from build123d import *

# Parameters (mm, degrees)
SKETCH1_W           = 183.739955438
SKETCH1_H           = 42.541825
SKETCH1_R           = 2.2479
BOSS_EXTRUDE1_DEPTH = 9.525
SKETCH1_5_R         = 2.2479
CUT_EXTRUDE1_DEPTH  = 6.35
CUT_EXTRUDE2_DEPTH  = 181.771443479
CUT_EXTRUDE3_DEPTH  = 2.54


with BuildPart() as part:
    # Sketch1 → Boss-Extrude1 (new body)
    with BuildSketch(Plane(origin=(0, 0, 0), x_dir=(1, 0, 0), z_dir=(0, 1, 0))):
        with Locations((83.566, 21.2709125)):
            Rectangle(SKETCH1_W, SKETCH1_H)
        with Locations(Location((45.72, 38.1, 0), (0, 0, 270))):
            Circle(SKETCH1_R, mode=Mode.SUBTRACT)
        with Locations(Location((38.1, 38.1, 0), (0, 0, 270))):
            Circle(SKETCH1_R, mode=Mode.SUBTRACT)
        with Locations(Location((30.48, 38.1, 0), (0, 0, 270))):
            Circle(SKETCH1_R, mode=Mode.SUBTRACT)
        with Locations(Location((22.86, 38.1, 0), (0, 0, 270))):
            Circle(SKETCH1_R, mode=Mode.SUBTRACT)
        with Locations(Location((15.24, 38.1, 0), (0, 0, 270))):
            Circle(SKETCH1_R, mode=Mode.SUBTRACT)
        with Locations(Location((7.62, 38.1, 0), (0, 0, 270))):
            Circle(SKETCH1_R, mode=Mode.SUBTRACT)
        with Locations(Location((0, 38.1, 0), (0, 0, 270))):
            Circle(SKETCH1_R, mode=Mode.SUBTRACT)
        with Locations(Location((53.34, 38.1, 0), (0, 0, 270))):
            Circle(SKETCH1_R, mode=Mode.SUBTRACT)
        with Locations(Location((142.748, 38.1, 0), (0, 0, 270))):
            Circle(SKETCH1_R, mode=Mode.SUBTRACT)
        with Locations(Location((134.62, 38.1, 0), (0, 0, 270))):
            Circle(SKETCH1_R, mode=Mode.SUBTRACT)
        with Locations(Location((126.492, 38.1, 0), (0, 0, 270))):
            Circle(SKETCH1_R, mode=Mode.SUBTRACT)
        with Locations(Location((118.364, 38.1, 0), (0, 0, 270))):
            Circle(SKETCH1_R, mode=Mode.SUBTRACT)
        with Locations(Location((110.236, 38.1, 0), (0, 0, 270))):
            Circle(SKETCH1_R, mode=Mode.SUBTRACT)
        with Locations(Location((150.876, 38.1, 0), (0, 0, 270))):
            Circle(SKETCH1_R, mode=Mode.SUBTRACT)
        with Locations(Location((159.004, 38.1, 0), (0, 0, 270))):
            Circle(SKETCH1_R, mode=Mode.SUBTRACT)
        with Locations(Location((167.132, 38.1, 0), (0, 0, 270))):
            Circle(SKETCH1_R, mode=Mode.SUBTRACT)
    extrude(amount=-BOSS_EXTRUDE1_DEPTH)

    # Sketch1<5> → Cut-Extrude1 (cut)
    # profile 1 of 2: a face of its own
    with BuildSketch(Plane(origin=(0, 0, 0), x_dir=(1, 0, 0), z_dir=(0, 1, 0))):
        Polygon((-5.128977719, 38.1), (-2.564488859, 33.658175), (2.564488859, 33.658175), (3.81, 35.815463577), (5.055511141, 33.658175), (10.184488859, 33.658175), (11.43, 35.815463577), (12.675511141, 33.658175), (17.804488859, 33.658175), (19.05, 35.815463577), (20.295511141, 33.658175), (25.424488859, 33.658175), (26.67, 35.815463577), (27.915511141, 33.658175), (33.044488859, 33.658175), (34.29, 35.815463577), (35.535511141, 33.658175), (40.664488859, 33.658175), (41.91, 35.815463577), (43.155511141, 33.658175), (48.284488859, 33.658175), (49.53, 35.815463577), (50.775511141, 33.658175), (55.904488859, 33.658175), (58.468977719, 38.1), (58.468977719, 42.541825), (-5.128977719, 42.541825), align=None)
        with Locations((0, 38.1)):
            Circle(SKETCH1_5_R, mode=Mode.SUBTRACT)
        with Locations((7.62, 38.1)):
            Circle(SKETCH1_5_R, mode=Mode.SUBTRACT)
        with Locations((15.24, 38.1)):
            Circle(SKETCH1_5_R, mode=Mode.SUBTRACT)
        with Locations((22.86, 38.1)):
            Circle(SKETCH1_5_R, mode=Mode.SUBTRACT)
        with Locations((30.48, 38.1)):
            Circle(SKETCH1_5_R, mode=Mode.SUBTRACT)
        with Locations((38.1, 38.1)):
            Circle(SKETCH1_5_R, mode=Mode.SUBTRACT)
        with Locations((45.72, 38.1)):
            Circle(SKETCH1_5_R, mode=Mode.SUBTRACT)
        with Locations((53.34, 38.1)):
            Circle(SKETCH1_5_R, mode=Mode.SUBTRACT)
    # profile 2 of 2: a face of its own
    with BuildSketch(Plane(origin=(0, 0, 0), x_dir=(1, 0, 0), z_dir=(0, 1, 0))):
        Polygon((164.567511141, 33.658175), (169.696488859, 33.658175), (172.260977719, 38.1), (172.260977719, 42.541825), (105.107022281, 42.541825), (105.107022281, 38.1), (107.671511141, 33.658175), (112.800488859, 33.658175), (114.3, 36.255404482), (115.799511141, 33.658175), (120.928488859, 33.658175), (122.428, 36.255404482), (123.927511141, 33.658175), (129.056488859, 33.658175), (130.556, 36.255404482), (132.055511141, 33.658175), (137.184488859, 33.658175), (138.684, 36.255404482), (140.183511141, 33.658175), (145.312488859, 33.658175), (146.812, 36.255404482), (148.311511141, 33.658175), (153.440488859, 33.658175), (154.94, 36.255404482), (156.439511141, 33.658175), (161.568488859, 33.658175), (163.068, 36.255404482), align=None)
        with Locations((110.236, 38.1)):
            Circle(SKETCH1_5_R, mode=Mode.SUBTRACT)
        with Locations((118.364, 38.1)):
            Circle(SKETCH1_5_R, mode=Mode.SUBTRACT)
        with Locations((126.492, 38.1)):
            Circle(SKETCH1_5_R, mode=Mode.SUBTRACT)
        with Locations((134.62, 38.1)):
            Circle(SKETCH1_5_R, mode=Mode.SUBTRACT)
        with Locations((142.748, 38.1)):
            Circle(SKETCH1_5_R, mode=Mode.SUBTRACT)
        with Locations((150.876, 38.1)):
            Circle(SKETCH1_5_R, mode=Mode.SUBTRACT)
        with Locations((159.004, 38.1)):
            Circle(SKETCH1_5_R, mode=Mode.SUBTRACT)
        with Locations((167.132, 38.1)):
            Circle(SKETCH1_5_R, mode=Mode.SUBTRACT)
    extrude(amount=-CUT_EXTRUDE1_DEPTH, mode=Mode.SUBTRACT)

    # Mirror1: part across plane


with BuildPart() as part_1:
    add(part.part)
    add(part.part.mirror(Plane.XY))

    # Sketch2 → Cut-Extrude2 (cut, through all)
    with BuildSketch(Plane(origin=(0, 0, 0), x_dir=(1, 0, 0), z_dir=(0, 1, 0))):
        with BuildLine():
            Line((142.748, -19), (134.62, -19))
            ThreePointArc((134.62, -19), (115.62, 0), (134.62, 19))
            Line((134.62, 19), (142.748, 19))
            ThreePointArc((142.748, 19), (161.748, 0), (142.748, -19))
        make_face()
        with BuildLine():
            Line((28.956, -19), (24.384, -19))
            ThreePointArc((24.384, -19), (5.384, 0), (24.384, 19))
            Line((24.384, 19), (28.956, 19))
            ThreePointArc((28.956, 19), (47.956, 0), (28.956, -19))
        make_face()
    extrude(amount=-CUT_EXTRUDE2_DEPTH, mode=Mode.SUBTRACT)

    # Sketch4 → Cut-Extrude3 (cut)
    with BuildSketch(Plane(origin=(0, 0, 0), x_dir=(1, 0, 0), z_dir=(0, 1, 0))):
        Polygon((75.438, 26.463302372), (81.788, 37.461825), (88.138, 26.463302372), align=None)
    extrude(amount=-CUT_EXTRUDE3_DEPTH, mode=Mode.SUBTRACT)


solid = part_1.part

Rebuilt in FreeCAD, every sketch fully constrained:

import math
import FreeCAD as App
import Part
import Sketcher
Q = App.Units.Quantity

doc = App.newDocument("Part")
body = doc.addObject("PartDesign::Body", "Body")

sketch1 = body.newObject("Sketcher::SketchObject", "Sketch")
sketch1.AttachmentSupport = (doc.getObject("XZ_Plane"), [""])
sketch1.MapMode = "FlatFace"
sketch1.addGeometry([
    Part.LineSegment(App.Vector(-8.3, -42.5, 0), App.Vector(-8.3, 0, 0)),
    Part.LineSegment(App.Vector(-8.3, 0, 0), App.Vector(175.4, 0, 0)),
    Part.LineSegment(App.Vector(175.4, 0, 0), App.Vector(175.4, -42.5, 0)),
    Part.LineSegment(App.Vector(175.4, -42.5, 0), App.Vector(-8.3, -42.5, 0)),
    Part.Circle(App.Vector(0, -38.1, 0), App.Vector(0, 0, 1), 2.2),
    Part.Circle(App.Vector(7.6, -38.1, 0), App.Vector(0, 0, 1), 2.2),
    Part.Circle(App.Vector(15.2, -38.1, 0), App.Vector(0, 0, 1), 2.2),
    Part.Circle(App.Vector(22.9, -38.1, 0), App.Vector(0, 0, 1), 2.2),
    Part.Circle(App.Vector(30.5, -38.1, 0), App.Vector(0, 0, 1), 2.2),
    Part.Circle(App.Vector(38.1, -38.1, 0), App.Vector(0, 0, 1), 2.2),
    Part.Circle(App.Vector(45.7, -38.1, 0), App.Vector(0, 0, 1), 2.2),
    Part.Circle(App.Vector(53.3, -38.1, 0), App.Vector(0, 0, 1), 2.2),
    Part.Circle(App.Vector(110.2, -38.1, 0), App.Vector(0, 0, 1), 2.2),
    Part.Circle(App.Vector(118.4, -38.1, 0), App.Vector(0, 0, 1), 2.2),
    Part.Circle(App.Vector(126.5, -38.1, 0), App.Vector(0, 0, 1), 2.2),
    Part.Circle(App.Vector(134.6, -38.1, 0), App.Vector(0, 0, 1), 2.2),
    Part.Circle(App.Vector(142.7, -38.1, 0), App.Vector(0, 0, 1), 2.2),
    Part.Circle(App.Vector(150.9, -38.1, 0), App.Vector(0, 0, 1), 2.2),
    Part.Circle(App.Vector(159, -38.1, 0), App.Vector(0, 0, 1), 2.2),
    Part.Circle(App.Vector(167.1, -38.1, 0), App.Vector(0, 0, 1), 2.2),
], False)
sketch1.addConstraint([
    Sketcher.Constraint("Coincident", 0, 2, 1, 1),
    Sketcher.Constraint("Coincident", 1, 2, 2, 1),
    Sketcher.Constraint("Coincident", 2, 2, 3, 1),
    Sketcher.Constraint("Coincident", 3, 2, 0, 1),
    Sketcher.Constraint("Vertical", 0),
    Sketcher.Constraint("Horizontal", 1),
    Sketcher.Constraint("Vertical", 2),
    Sketcher.Constraint("Horizontal", 3),
    Sketcher.Constraint("Equal", 4, 5),
    Sketcher.Constraint("Equal", 5, 6),
    Sketcher.Constraint("Equal", 6, 7),
    Sketcher.Constraint("Equal", 7, 8),
    Sketcher.Constraint("Equal", 8, 9),
    Sketcher.Constraint("Equal", 9, 10),
    Sketcher.Constraint("Equal", 10, 11),
    Sketcher.Constraint("Equal", 11, 12),
    Sketcher.Constraint("Equal", 12, 13),
    Sketcher.Constraint("Equal", 13, 14),
    Sketcher.Constraint("Equal", 14, 15),
    Sketcher.Constraint("Equal", 15, 16),
    Sketcher.Constraint("Equal", 16, 17),
    Sketcher.Constraint("Equal", 17, 18),
    Sketcher.Constraint("Equal", 18, 19),
    Sketcher.Constraint("PointOnObject", 4, 3, -2),
    Sketcher.Constraint("PointOnObject", 0, 2, -1),
    Sketcher.Constraint("Horizontal", 4, 3, 5, 3),
    Sketcher.Constraint("Horizontal", 5, 3, 6, 3),
    Sketcher.Constraint("Horizontal", 6, 3, 7, 3),
    Sketcher.Constraint("Horizontal", 7, 3, 8, 3),
    Sketcher.Constraint("Horizontal", 8, 3, 9, 3),
    Sketcher.Constraint("Horizontal", 9, 3, 10, 3),
    Sketcher.Constraint("Horizontal", 10, 3, 11, 3),
    Sketcher.Constraint("Horizontal", 11, 3, 12, 3),
    Sketcher.Constraint("Horizontal", 12, 3, 13, 3),
    Sketcher.Constraint("Horizontal", 13, 3, 14, 3),
    Sketcher.Constraint("Horizontal", 14, 3, 15, 3),
    Sketcher.Constraint("Horizontal", 15, 3, 16, 3),
    Sketcher.Constraint("Horizontal", 16, 3, 17, 3),
    Sketcher.Constraint("Horizontal", 17, 3, 18, 3),
    Sketcher.Constraint("Horizontal", 18, 3, 19, 3),
    Sketcher.Constraint("Diameter", 4, Q("0.177 in")),
    Sketcher.Constraint("DistanceY", 4, 3, -1, 1, Q("1.5 in")),
    Sketcher.Constraint("DistanceX", -1, 1, 5, 3, Q("0.3 in")),
    Sketcher.Constraint("DistanceX", -1, 1, 6, 3, Q("0.6 in")),
    Sketcher.Constraint("DistanceX", -1, 1, 7, 3, Q("0.9 in")),
    Sketcher.Constraint("DistanceX", -1, 1, 8, 3, Q("1.2 in")),
    Sketcher.Constraint("DistanceX", -1, 1, 9, 3, Q("1.5 in")),
    Sketcher.Constraint("DistanceX", -1, 1, 10, 3, Q("1.8 in")),
    Sketcher.Constraint("DistanceX", -1, 1, 11, 3, Q("2.1 in")),
    Sketcher.Constraint("DistanceX", -1, 1, 15, 3, Q("5.3 in")),
    Sketcher.Constraint("DistanceX", 12, 3, 17, 3, Q("1.6 in")),
    Sketcher.Constraint("DistanceX", 13, 3, 18, 3, Q("1.6 in")),
    Sketcher.Constraint("DistanceX", 14, 3, 19, 3, Q("1.6 in")),
    Sketcher.Constraint("DistanceX", -1, 1, 12, 3, Q("4.34 in")),
    Sketcher.Constraint("DistanceX", -1, 1, 13, 3, Q("4.66 in")),
    Sketcher.Constraint("DistanceX", -1, 1, 14, 3, Q("4.98 in")),
    Sketcher.Constraint("DistanceX", -1, 1, 16, 3, Q("5.62 in")),
    Sketcher.Constraint("DistanceX", 1, 1, 1, 2, Q("183.739955 mm")),
    Sketcher.Constraint("DistanceY", 0, 1, 0, 2, Q("42.541825 mm")),
    Sketcher.Constraint("DistanceX", 0, 2, -1, 1, Q("8.303978 mm")),
])
pad1 = body.newObject("PartDesign::Pad", "Pad")
pad1.Profile = sketch1
pad1.Length = Q("0.375 in")

sketch2 = body.newObject("Sketcher::SketchObject", "Sketch001")
sketch2.AttachmentSupport = (doc.getObject("XZ_Plane"), [""])
sketch2.MapMode = "FlatFace"
sketch2.addGeometry([
    Part.LineSegment(App.Vector(-5.1, -38.1, 0), App.Vector(-2.6, -33.7, 0)),
    Part.LineSegment(App.Vector(-2.6, -33.7, 0), App.Vector(2.6, -33.7, 0)),
    Part.LineSegment(App.Vector(2.6, -33.7, 0), App.Vector(3.8, -35.8, 0)),
    Part.LineSegment(App.Vector(3.8, -35.8, 0), App.Vector(5.1, -33.7, 0)),
    Part.LineSegment(App.Vector(5.1, -33.7, 0), App.Vector(10.2, -33.7, 0)),
    Part.LineSegment(App.Vector(10.2, -33.7, 0), App.Vector(11.4, -35.8, 0)),
    Part.LineSegment(App.Vector(11.4, -35.8, 0), App.Vector(12.7, -33.7, 0)),
    Part.LineSegment(App.Vector(12.7, -33.7, 0), App.Vector(17.8, -33.7, 0)),
    Part.LineSegment(App.Vector(17.8, -33.7, 0), App.Vector(19.1, -35.8, 0)),
    Part.LineSegment(App.Vector(19.1, -35.8, 0), App.Vector(20.3, -33.7, 0)),
    Part.LineSegment(App.Vector(20.3, -33.7, 0), App.Vector(25.4, -33.7, 0)),
    Part.LineSegment(App.Vector(25.4, -33.7, 0), App.Vector(26.7, -35.8, 0)),
    Part.LineSegment(App.Vector(26.7, -35.8, 0), App.Vector(27.9, -33.7, 0)),
    Part.LineSegment(App.Vector(27.9, -33.7, 0), App.Vector(33, -33.7, 0)),
    Part.LineSegment(App.Vector(33, -33.7, 0), App.Vector(34.3, -35.8, 0)),
    Part.LineSegment(App.Vector(34.3, -35.8, 0), App.Vector(35.5, -33.7, 0)),
    Part.LineSegment(App.Vector(35.5, -33.7, 0), App.Vector(40.7, -33.7, 0)),
    Part.LineSegment(App.Vector(40.7, -33.7, 0), App.Vector(41.9, -35.8, 0)),
    Part.LineSegment(App.Vector(41.9, -35.8, 0), App.Vector(43.2, -33.7, 0)),
    Part.LineSegment(App.Vector(43.2, -33.7, 0), App.Vector(48.3, -33.7, 0)),
    Part.LineSegment(App.Vector(48.3, -33.7, 0), App.Vector(49.5, -35.8, 0)),
    Part.LineSegment(App.Vector(49.5, -35.8, 0), App.Vector(50.8, -33.7, 0)),
    Part.LineSegment(App.Vector(50.8, -33.7, 0), App.Vector(55.9, -33.7, 0)),
    Part.LineSegment(App.Vector(55.9, -33.7, 0), App.Vector(58.5, -38.1, 0)),
    Part.LineSegment(App.Vector(58.5, -38.1, 0), App.Vector(58.5, -42.5, 0)),
    Part.LineSegment(App.Vector(58.5, -42.5, 0), App.Vector(-5.1, -42.5, 0)),
    Part.LineSegment(App.Vector(-5.1, -42.5, 0), App.Vector(-5.1, -38.1, 0)),
    Part.Circle(App.Vector(0, -38.1, 0), App.Vector(0, 0, 1), 2.2),
    Part.Circle(App.Vector(7.6, -38.1, 0), App.Vector(0, 0, 1), 2.2),
    Part.Circle(App.Vector(15.2, -38.1, 0), App.Vector(0, 0, 1), 2.2),
    Part.Circle(App.Vector(22.9, -38.1, 0), App.Vector(0, 0, 1), 2.2),
    Part.Circle(App.Vector(30.5, -38.1, 0), App.Vector(0, 0, 1), 2.2),
    Part.Circle(App.Vector(38.1, -38.1, 0), App.Vector(0, 0, 1), 2.2),
    Part.Circle(App.Vector(45.7, -38.1, 0), App.Vector(0, 0, 1), 2.2),
    Part.Circle(App.Vector(53.3, -38.1, 0), App.Vector(0, 0, 1), 2.2),
    Part.LineSegment(App.Vector(164.6, -33.7, 0), App.Vector(169.7, -33.7, 0)),
    Part.LineSegment(App.Vector(169.7, -33.7, 0), App.Vector(172.3, -38.1, 0)),
    Part.LineSegment(App.Vector(172.3, -38.1, 0), App.Vector(172.3, -42.5, 0)),
    Part.LineSegment(App.Vector(172.3, -42.5, 0), App.Vector(105.1, -42.5, 0)),
    Part.LineSegment(App.Vector(105.1, -42.5, 0), App.Vector(105.1, -38.1, 0)),
    Part.LineSegment(App.Vector(105.1, -38.1, 0), App.Vector(107.7, -33.7, 0)),
    Part.LineSegment(App.Vector(107.7, -33.7, 0), App.Vector(112.8, -33.7, 0)),
    Part.LineSegment(App.Vector(112.8, -33.7, 0), App.Vector(114.3, -36.3, 0)),
    Part.LineSegment(App.Vector(114.3, -36.3, 0), App.Vector(115.8, -33.7, 0)),
    Part.LineSegment(App.Vector(115.8, -33.7, 0), App.Vector(120.9, -33.7, 0)),
    Part.LineSegment(App.Vector(120.9, -33.7, 0), App.Vector(122.4, -36.3, 0)),
    Part.LineSegment(App.Vector(122.4, -36.3, 0), App.Vector(123.9, -33.7, 0)),
    Part.LineSegment(App.Vector(123.9, -33.7, 0), App.Vector(129.1, -33.7, 0)),
    Part.LineSegment(App.Vector(129.1, -33.7, 0), App.Vector(130.6, -36.3, 0)),
    Part.LineSegment(App.Vector(130.6, -36.3, 0), App.Vector(132.1, -33.7, 0)),
    Part.LineSegment(App.Vector(132.1, -33.7, 0), App.Vector(137.2, -33.7, 0)),
    Part.LineSegment(App.Vector(137.2, -33.7, 0), App.Vector(138.7, -36.3, 0)),
    Part.LineSegment(App.Vector(138.7, -36.3, 0), App.Vector(140.2, -33.7, 0)),
    Part.LineSegment(App.Vector(140.2, -33.7, 0), App.Vector(145.3, -33.7, 0)),
    Part.LineSegment(App.Vector(145.3, -33.7, 0), App.Vector(146.8, -36.3, 0)),
    Part.LineSegment(App.Vector(146.8, -36.3, 0), App.Vector(148.3, -33.7, 0)),
    Part.LineSegment(App.Vector(148.3, -33.7, 0), App.Vector(153.4, -33.7, 0)),
    Part.LineSegment(App.Vector(153.4, -33.7, 0), App.Vector(154.9, -36.3, 0)),
    Part.LineSegment(App.Vector(154.9, -36.3, 0), App.Vector(156.4, -33.7, 0)),
    Part.LineSegment(App.Vector(156.4, -33.7, 0), App.Vector(161.6, -33.7, 0)),
    Part.LineSegment(App.Vector(161.6, -33.7, 0), App.Vector(163.1, -36.3, 0)),
    Part.LineSegment(App.Vector(163.1, -36.3, 0), App.Vector(164.6, -33.7, 0)),
    Part.Circle(App.Vector(110.2, -38.1, 0), App.Vector(0, 0, 1), 2.2),
    Part.Circle(App.Vector(118.4, -38.1, 0), App.Vector(0, 0, 1), 2.2),
    Part.Circle(App.Vector(126.5, -38.1, 0), App.Vector(0, 0, 1), 2.2),
    Part.Circle(App.Vector(134.6, -38.1, 0), App.Vector(0, 0, 1), 2.2),
    Part.Circle(App.Vector(142.7, -38.1, 0), App.Vector(0, 0, 1), 2.2),
    Part.Circle(App.Vector(150.9, -38.1, 0), App.Vector(0, 0, 1), 2.2),
    Part.Circle(App.Vector(159, -38.1, 0), App.Vector(0, 0, 1), 2.2),
    Part.Circle(App.Vector(167.1, -38.1, 0), App.Vector(0, 0, 1), 2.2),
], False)
sketch2.addConstraint([
    Sketcher.Constraint("Coincident", 0, 2, 1, 1),
    Sketcher.Constraint("Coincident", 1, 2, 2, 1),
    Sketcher.Constraint("Coincident", 2, 2, 3, 1),
    Sketcher.Constraint("Coincident", 3, 2, 4, 1),
    Sketcher.Constraint("Coincident", 4, 2, 5, 1),
    Sketcher.Constraint("Coincident", 5, 2, 6, 1),
    Sketcher.Constraint("Coincident", 6, 2, 7, 1),
    Sketcher.Constraint("Coincident", 7, 2, 8, 1),
    Sketcher.Constraint("Coincident", 8, 2, 9, 1),
    Sketcher.Constraint("Coincident", 9, 2, 10, 1),
    Sketcher.Constraint("Coincident", 10, 2, 11, 1),
    Sketcher.Constraint("Coincident", 11, 2, 12, 1),
    Sketcher.Constraint("Coincident", 12, 2, 13, 1),
    Sketcher.Constraint("Coincident", 13, 2, 14, 1),
    Sketcher.Constraint("Coincident", 14, 2, 15, 1),
    Sketcher.Constraint("Coincident", 15, 2, 16, 1),
    Sketcher.Constraint("Coincident", 16, 2, 17, 1),
    Sketcher.Constraint("Coincident", 17, 2, 18, 1),
    Sketcher.Constraint("Coincident", 18, 2, 19, 1),
    Sketcher.Constraint("Coincident", 19, 2, 20, 1),
    Sketcher.Constraint("Coincident", 20, 2, 21, 1),
    Sketcher.Constraint("Coincident", 21, 2, 22, 1),
    Sketcher.Constraint("Coincident", 22, 2, 23, 1),
    Sketcher.Constraint("Coincident", 23, 2, 24, 1),
    Sketcher.Constraint("Coincident", 24, 2, 25, 1),
    Sketcher.Constraint("Coincident", 25, 2, 26, 1),
    Sketcher.Constraint("Coincident", 26, 2, 0, 1),
    Sketcher.Constraint("Coincident", 35, 2, 36, 1),
    Sketcher.Constraint("Coincident", 36, 2, 37, 1),
    Sketcher.Constraint("Coincident", 37, 2, 38, 1),
    Sketcher.Constraint("Coincident", 38, 2, 39, 1),
    Sketcher.Constraint("Coincident", 39, 2, 40, 1),
    Sketcher.Constraint("Coincident", 40, 2, 41, 1),
    Sketcher.Constraint("Coincident", 41, 2, 42, 1),
    Sketcher.Constraint("Coincident", 42, 2, 43, 1),
    Sketcher.Constraint("Coincident", 43, 2, 44, 1),
    Sketcher.Constraint("Coincident", 44, 2, 45, 1),
    Sketcher.Constraint("Coincident", 45, 2, 46, 1),
    Sketcher.Constraint("Coincident", 46, 2, 47, 1),
    Sketcher.Constraint("Coincident", 47, 2, 48, 1),
    Sketcher.Constraint("Coincident", 48, 2, 49, 1),
    Sketcher.Constraint("Coincident", 49, 2, 50, 1),
    Sketcher.Constraint("Coincident", 50, 2, 51, 1),
    Sketcher.Constraint("Coincident", 51, 2, 52, 1),
    Sketcher.Constraint("Coincident", 52, 2, 53, 1),
    Sketcher.Constraint("Coincident", 53, 2, 54, 1),
    Sketcher.Constraint("Coincident", 54, 2, 55, 1),
    Sketcher.Constraint("Coincident", 55, 2, 56, 1),
    Sketcher.Constraint("Coincident", 56, 2, 57, 1),
    Sketcher.Constraint("Coincident", 57, 2, 58, 1),
    Sketcher.Constraint("Coincident", 58, 2, 59, 1),
    Sketcher.Constraint("Coincident", 59, 2, 60, 1),
    Sketcher.Constraint("Coincident", 60, 2, 61, 1),
    Sketcher.Constraint("Coincident", 61, 2, 35, 1),
    Sketcher.Constraint("Horizontal", 1),
    Sketcher.Constraint("Horizontal", 4),
    Sketcher.Constraint("Horizontal", 7),
    Sketcher.Constraint("Horizontal", 10),
    Sketcher.Constraint("Horizontal", 13),
    Sketcher.Constraint("Horizontal", 16),
    Sketcher.Constraint("Horizontal", 19),
    Sketcher.Constraint("Horizontal", 22),
    Sketcher.Constraint("Vertical", 24),
    Sketcher.Constraint("Horizontal", 25),
    Sketcher.Constraint("Vertical", 26),
    Sketcher.Constraint("Horizontal", 35),
    Sketcher.Constraint("Vertical", 37),
    Sketcher.Constraint("Horizontal", 38),
    Sketcher.Constraint("Vertical", 39),
    Sketcher.Constraint("Horizontal", 41),
    Sketcher.Constraint("Horizontal", 44),
    Sketcher.Constraint("Horizontal", 47),
    Sketcher.Constraint("Horizontal", 50),
    Sketcher.Constraint("Horizontal", 53),
    Sketcher.Constraint("Horizontal", 56),
    Sketcher.Constraint("Horizontal", 59),
    Sketcher.Constraint("Equal", 27, 28),
    Sketcher.Constraint("Equal", 28, 29),
    Sketcher.Constraint("Equal", 29, 30),
    Sketcher.Constraint("Equal", 30, 31),
    Sketcher.Constraint("Equal", 31, 32),
    Sketcher.Constraint("Equal", 32, 33),
    Sketcher.Constraint("Equal", 33, 34),
    Sketcher.Constraint("Equal", 34, 62),
    Sketcher.Constraint("Equal", 62, 63),
    Sketcher.Constraint("Equal", 63, 64),
    Sketcher.Constraint("Equal", 64, 65),
    Sketcher.Constraint("Equal", 65, 66),
    Sketcher.Constraint("Equal", 66, 67),
    Sketcher.Constraint("Equal", 67, 68),
    Sketcher.Constraint("Equal", 68, 69),
    Sketcher.Constraint("PointOnObject", 27, 3, -2),
    Sketcher.Constraint("Parallel", 0, 3),
    Sketcher.Constraint("Parallel", 2, 5),
    Sketcher.Constraint("Parallel", 3, 6),
    Sketcher.Constraint("Parallel", 5, 8),
    Sketcher.Constraint("Parallel", 6, 9),
    Sketcher.Constraint("Parallel", 8, 11),
    Sketcher.Constraint("Parallel", 9, 12),
    Sketcher.Constraint("Parallel", 11, 14),
    Sketcher.Constraint("Parallel", 12, 15),
    Sketcher.Constraint("Parallel", 14, 17),
    Sketcher.Constraint("Parallel", 15, 18),
    Sketcher.Constraint("Parallel", 17, 20),
    Sketcher.Constraint("Parallel", 18, 21),
    Sketcher.Constraint("Parallel", 20, 23),
    Sketcher.Constraint("Parallel", 23, 36),
    Sketcher.Constraint("Parallel", 21, 40),
    Sketcher.Constraint("Parallel", 36, 42),
    Sketcher.Constraint("Parallel", 40, 43),
    Sketcher.Constraint("Parallel", 42, 45),
    Sketcher.Constraint("Parallel", 43, 46),
    Sketcher.Constraint("Parallel", 45, 48),
    Sketcher.Constraint("Parallel", 46, 49),
    Sketcher.Constraint("Parallel", 48, 51),
    Sketcher.Constraint("Parallel", 49, 52),
    Sketcher.Constraint("Parallel", 51, 54),
    Sketcher.Constraint("Parallel", 52, 55),
    Sketcher.Constraint("Parallel", 54, 57),
    Sketcher.Constraint("Parallel", 55, 58),
    Sketcher.Constraint("Parallel", 57, 60),
    Sketcher.Constraint("Parallel", 58, 61),
    Sketcher.Constraint("Horizontal", 27, 3, 28, 3),
    Sketcher.Constraint("Horizontal", 28, 3, 29, 3),
    Sketcher.Constraint("Horizontal", 29, 3, 30, 3),
    Sketcher.Constraint("Horizontal", 30, 3, 31, 3),
    Sketcher.Constraint("Horizontal", 31, 3, 32, 3),
    Sketcher.Constraint("Horizontal", 32, 3, 33, 3),
    Sketcher.Constraint("Horizontal", 33, 3, 34, 3),
    Sketcher.Constraint("Horizontal", 34, 3, 62, 3),
    Sketcher.Constraint("Horizontal", 62, 3, 63, 3),
    Sketcher.Constraint("Horizontal", 63, 3, 64, 3),
    Sketcher.Constraint("Horizontal", 64, 3, 65, 3),
    Sketcher.Constraint("Horizontal", 65, 3, 66, 3),
    Sketcher.Constraint("Horizontal", 66, 3, 67, 3),
    Sketcher.Constraint("Horizontal", 67, 3, 68, 3),
    Sketcher.Constraint("Horizontal", 68, 3, 69, 3),
    Sketcher.Constraint("Horizontal", 1, 2, 3, 2),
    Sketcher.Constraint("Horizontal", 2, 2, 5, 2),
    Sketcher.Constraint("Horizontal", 4, 2, 6, 2),
    Sketcher.Constraint("Horizontal", 5, 2, 8, 2),
    Sketcher.Constraint("Horizontal", 7, 2, 9, 2),
    Sketcher.Constraint("Horizontal", 8, 2, 11, 2),
    Sketcher.Constraint("Horizontal", 10, 2, 12, 2),
    Sketcher.Constraint("Horizontal", 11, 2, 14, 2),
    Sketcher.Constraint("Horizontal", 13, 2, 15, 2),
    Sketcher.Constraint("Horizontal", 14, 2, 17, 2),
    Sketcher.Constraint("Horizontal", 16, 2, 18, 2),
    Sketcher.Constraint("Horizontal", 17, 2, 20, 2),
    Sketcher.Constraint("Horizontal", 19, 2, 21, 2),
    Sketcher.Constraint("Horizontal", 69, 3, 23, 2),
    Sketcher.Constraint("Horizontal", 23, 2, 26, 2),
    Sketcher.Constraint("Horizontal", 22, 2, 35, 2),
    Sketcher.Constraint("Horizontal", 26, 2, 36, 2),
    Sketcher.Constraint("Horizontal", 25, 2, 37, 2),
    Sketcher.Constraint("Horizontal", 36, 2, 39, 2),
    Sketcher.Constraint("Horizontal", 35, 2, 40, 2),
    Sketcher.Constraint("Horizontal", 41, 2, 43, 2),
    Sketcher.Constraint("Horizontal", 42, 2, 45, 2),
    Sketcher.Constraint("Horizontal", 44, 2, 46, 2),
    Sketcher.Constraint("Horizontal", 45, 2, 48, 2),
    Sketcher.Constraint("Horizontal", 47, 2, 49, 2),
    Sketcher.Constraint("Horizontal", 48, 2, 51, 2),
    Sketcher.Constraint("Horizontal", 50, 2, 52, 2),
    Sketcher.Constraint("Horizontal", 51, 2, 54, 2),
    Sketcher.Constraint("Horizontal", 53, 2, 55, 2),
    Sketcher.Constraint("Horizontal", 54, 2, 57, 2),
    Sketcher.Constraint("Horizontal", 56, 2, 58, 2),
    Sketcher.Constraint("Horizontal", 57, 2, 60, 2),
    Sketcher.Constraint("Equal", 1, 4),
    Sketcher.Constraint("Equal", 4, 7),
    Sketcher.Constraint("Equal", 7, 10),
    Sketcher.Constraint("Equal", 10, 13),
    Sketcher.Constraint("Equal", 13, 16),
    Sketcher.Constraint("Equal", 16, 19),
    Sketcher.Constraint("Equal", 19, 22),
    Sketcher.Constraint("Equal", 22, 35),
    Sketcher.Constraint("Equal", 35, 41),
    Sketcher.Constraint("Equal", 41, 44),
    Sketcher.Constraint("Equal", 44, 47),
    Sketcher.Constraint("Equal", 47, 50),
    Sketcher.Constraint("Equal", 50, 53),
    Sketcher.Constraint("Equal", 53, 56),
    Sketcher.Constraint("Equal", 56, 59),
    Sketcher.Constraint("Equal", 2, 3),
    Sketcher.Constraint("Diameter", 27, Q("0.177 in")),
    Sketcher.Constraint("Angle", 0, Q("60 deg")),
    Sketcher.Constraint("DistanceY", 27, 3, -1, 1, Q("1.5 in")),
    Sketcher.Constraint("DistanceX", -1, 1, 28, 3, Q("0.3 in")),
    Sketcher.Constraint("DistanceX", -1, 1, 29, 3, Q("0.6 in")),
    Sketcher.Constraint("DistanceX", -1, 1, 30, 3, Q("0.9 in")),
    Sketcher.Constraint("DistanceX", -1, 1, 31, 3, Q("1.2 in")),
    Sketcher.Constraint("DistanceX", -1, 1, 32, 3, Q("1.5 in")),
    Sketcher.Constraint("DistanceX", -1, 1, 33, 3, Q("1.8 in")),
    Sketcher.Constraint("DistanceX", -1, 1, 34, 3, Q("2.1 in")),
    Sketcher.Constraint("DistanceX", -1, 1, 65, 3, Q("5.3 in")),
    Sketcher.Constraint("DistanceX", -1, 1, 42, 2, Q("4.5 in")),
    Sketcher.Constraint("DistanceX", -1, 1, 57, 2, Q("6.1 in")),
    Sketcher.Constraint("DistanceX", -1, 1, 62, 3, Q("4.34 in")),
    Sketcher.Constraint("DistanceX", -1, 1, 63, 3, Q("4.66 in")),
    Sketcher.Constraint("DistanceX", -1, 1, 64, 3, Q("4.98 in")),
    Sketcher.Constraint("DistanceX", -1, 1, 66, 3, Q("5.62 in")),
    Sketcher.Constraint("DistanceX", -1, 1, 67, 3, Q("5.94 in")),
    Sketcher.Constraint("DistanceX", -1, 1, 68, 3, Q("6.26 in")),
    Sketcher.Constraint("DistanceX", -1, 1, 69, 3, Q("6.58 in")),
    Sketcher.Constraint("DistanceX", -1, 1, 2, 2, Q("0.15 in")),
    Sketcher.Constraint("DistanceX", -1, 1, 5, 2, Q("0.45 in")),
    Sketcher.Constraint("DistanceX", 1, 1, 1, 2, Q("5.128978 mm")),
    Sketcher.Constraint("DistanceX", 25, 2, 25, 1, Q("63.597955 mm")),
    Sketcher.Constraint("DistanceY", 24, 2, 24, 1, Q("4.441825 mm")),
])
pocket1 = body.newObject("PartDesign::Pocket", "Pocket")
pocket1.Profile = sketch2
pocket1.Length = Q("0.25 in")
pocket1.Reversed = True
body2 = doc.addObject("PartDesign::Body", "Body001")
doc.recompute()

body2.BaseFeature = body
doc.recompute()

mirroring = doc.addObject("Part::Mirroring", "Mirroring")
mirroring.Source = body
mirroring.Base = App.Vector(0, 0, 0)
mirroring.Normal = App.Vector(0, 0, 1)
body3 = doc.addObject("PartDesign::Body", "Body002")
body3.BaseFeature = mirroring
boolean = body2.newObject("PartDesign::Boolean", "Boolean")
boolean.Type = "Fuse"
boolean.addObjects([body3])
doc.recompute()

sketch3 = body2.newObject("Sketcher::SketchObject", "Sketch002")
sketch3.AttachmentSupport = (doc.getObject("XZ_Plane001"), [""])
sketch3.MapMode = "FlatFace"
sketch3.addGeometry([
    Part.LineSegment(App.Vector(134.6, 19, 0), App.Vector(142.7, 19, 0)),
    Part.ArcOfCircle(Part.Circle(App.Vector(142.7, 0, 0), App.Vector(0, 0, 1), 19), math.radians(-90), math.radians(90)),
    Part.LineSegment(App.Vector(142.7, -19, 0), App.Vector(134.6, -19, 0)),
    Part.ArcOfCircle(Part.Circle(App.Vector(134.6, 0, 0), App.Vector(0, 0, 1), 19), math.radians(90), math.radians(270)),
    Part.LineSegment(App.Vector(24.4, 19, 0), App.Vector(29, 19, 0)),
    Part.ArcOfCircle(Part.Circle(App.Vector(29, 0, 0), App.Vector(0, 0, 1), 19), math.radians(-90), math.radians(90)),
    Part.LineSegment(App.Vector(29, -19, 0), App.Vector(24.4, -19, 0)),
    Part.ArcOfCircle(Part.Circle(App.Vector(24.4, 0, 0), App.Vector(0, 0, 1), 19), math.radians(90), math.radians(270)),
], False)
sketch3.addConstraint([
    Sketcher.Constraint("Tangent", 0, 2, 1, 2),
    Sketcher.Constraint("Tangent", 1, 1, 2, 1),
    Sketcher.Constraint("Tangent", 2, 2, 3, 2),
    Sketcher.Constraint("Tangent", 3, 1, 0, 1),
    Sketcher.Constraint("Tangent", 4, 2, 5, 2),
    Sketcher.Constraint("Tangent", 5, 1, 6, 1),
    Sketcher.Constraint("Tangent", 6, 2, 7, 2),
    Sketcher.Constraint("Tangent", 7, 1, 4, 1),
    Sketcher.Constraint("Horizontal", 0),
    Sketcher.Constraint("Horizontal", 2),
    Sketcher.Constraint("Horizontal", 4),
    Sketcher.Constraint("Horizontal", 6),
    Sketcher.Constraint("Equal", 3, 5),
    Sketcher.Constraint("PointOnObject", 1, 3, -1),
    Sketcher.Constraint("PointOnObject", 5, 3, -1),
    Sketcher.Constraint("DistanceX", 0, 1, 0, 2, Q("0.32 in")),
    Sketcher.Constraint("DistanceX", 4, 1, 4, 2, Q("0.18 in")),
    Sketcher.Constraint("DistanceX", -1, 1, 3, 3, Q("5.3 in")),
    Sketcher.Constraint("DistanceX", -1, 1, 5, 3, Q("1.14 in")),
    Sketcher.Constraint("Radius", 1, Q("19 mm")),
])
pocket2 = body2.newObject("PartDesign::Pocket", "Pocket001")
pocket2.Profile = sketch3
pocket2.Type = "ThroughAll"
pocket2.Reversed = True

sketch4 = body2.newObject("Sketcher::SketchObject", "Sketch003")
sketch4.AttachmentSupport = (doc.getObject("XZ_Plane001"), [""])
sketch4.MapMode = "FlatFace"
sketch4.addGeometry([
    Part.LineSegment(App.Vector(82, -37, 0), App.Vector(75, -26, 0)),
    Part.LineSegment(App.Vector(75, -26, 0), App.Vector(88, -26, 0)),
    Part.LineSegment(App.Vector(88, -26, 0), App.Vector(82, -37, 0)),
], False)
sketch4.addConstraint([
    Sketcher.Constraint("Coincident", 0, 2, 1, 1),
    Sketcher.Constraint("Coincident", 1, 2, 2, 1),
    Sketcher.Constraint("Coincident", 2, 2, 0, 1),
    Sketcher.Constraint("Horizontal", 1),
    Sketcher.Constraint("Equal", 0, 2),
    Sketcher.Constraint("DistanceX", 1, 1, 1, 2, Q("0.5 in")),
    Sketcher.Constraint("Angle", 0, Q("120 deg")),
    Sketcher.Constraint("DistanceX", -1, 1, 0, 2, Q("2.97 in")),
    Sketcher.Constraint("DistanceY", 0, 2, -1, 1, Q("26.463302 mm")),
])
pocket3 = body2.newObject("PartDesign::Pocket", "Pocket002")
pocket3.Profile = sketch4
pocket3.Length = Q("0.1 in")
pocket3.Reversed = True
mirroring.Visibility = False

doc.recompute()
